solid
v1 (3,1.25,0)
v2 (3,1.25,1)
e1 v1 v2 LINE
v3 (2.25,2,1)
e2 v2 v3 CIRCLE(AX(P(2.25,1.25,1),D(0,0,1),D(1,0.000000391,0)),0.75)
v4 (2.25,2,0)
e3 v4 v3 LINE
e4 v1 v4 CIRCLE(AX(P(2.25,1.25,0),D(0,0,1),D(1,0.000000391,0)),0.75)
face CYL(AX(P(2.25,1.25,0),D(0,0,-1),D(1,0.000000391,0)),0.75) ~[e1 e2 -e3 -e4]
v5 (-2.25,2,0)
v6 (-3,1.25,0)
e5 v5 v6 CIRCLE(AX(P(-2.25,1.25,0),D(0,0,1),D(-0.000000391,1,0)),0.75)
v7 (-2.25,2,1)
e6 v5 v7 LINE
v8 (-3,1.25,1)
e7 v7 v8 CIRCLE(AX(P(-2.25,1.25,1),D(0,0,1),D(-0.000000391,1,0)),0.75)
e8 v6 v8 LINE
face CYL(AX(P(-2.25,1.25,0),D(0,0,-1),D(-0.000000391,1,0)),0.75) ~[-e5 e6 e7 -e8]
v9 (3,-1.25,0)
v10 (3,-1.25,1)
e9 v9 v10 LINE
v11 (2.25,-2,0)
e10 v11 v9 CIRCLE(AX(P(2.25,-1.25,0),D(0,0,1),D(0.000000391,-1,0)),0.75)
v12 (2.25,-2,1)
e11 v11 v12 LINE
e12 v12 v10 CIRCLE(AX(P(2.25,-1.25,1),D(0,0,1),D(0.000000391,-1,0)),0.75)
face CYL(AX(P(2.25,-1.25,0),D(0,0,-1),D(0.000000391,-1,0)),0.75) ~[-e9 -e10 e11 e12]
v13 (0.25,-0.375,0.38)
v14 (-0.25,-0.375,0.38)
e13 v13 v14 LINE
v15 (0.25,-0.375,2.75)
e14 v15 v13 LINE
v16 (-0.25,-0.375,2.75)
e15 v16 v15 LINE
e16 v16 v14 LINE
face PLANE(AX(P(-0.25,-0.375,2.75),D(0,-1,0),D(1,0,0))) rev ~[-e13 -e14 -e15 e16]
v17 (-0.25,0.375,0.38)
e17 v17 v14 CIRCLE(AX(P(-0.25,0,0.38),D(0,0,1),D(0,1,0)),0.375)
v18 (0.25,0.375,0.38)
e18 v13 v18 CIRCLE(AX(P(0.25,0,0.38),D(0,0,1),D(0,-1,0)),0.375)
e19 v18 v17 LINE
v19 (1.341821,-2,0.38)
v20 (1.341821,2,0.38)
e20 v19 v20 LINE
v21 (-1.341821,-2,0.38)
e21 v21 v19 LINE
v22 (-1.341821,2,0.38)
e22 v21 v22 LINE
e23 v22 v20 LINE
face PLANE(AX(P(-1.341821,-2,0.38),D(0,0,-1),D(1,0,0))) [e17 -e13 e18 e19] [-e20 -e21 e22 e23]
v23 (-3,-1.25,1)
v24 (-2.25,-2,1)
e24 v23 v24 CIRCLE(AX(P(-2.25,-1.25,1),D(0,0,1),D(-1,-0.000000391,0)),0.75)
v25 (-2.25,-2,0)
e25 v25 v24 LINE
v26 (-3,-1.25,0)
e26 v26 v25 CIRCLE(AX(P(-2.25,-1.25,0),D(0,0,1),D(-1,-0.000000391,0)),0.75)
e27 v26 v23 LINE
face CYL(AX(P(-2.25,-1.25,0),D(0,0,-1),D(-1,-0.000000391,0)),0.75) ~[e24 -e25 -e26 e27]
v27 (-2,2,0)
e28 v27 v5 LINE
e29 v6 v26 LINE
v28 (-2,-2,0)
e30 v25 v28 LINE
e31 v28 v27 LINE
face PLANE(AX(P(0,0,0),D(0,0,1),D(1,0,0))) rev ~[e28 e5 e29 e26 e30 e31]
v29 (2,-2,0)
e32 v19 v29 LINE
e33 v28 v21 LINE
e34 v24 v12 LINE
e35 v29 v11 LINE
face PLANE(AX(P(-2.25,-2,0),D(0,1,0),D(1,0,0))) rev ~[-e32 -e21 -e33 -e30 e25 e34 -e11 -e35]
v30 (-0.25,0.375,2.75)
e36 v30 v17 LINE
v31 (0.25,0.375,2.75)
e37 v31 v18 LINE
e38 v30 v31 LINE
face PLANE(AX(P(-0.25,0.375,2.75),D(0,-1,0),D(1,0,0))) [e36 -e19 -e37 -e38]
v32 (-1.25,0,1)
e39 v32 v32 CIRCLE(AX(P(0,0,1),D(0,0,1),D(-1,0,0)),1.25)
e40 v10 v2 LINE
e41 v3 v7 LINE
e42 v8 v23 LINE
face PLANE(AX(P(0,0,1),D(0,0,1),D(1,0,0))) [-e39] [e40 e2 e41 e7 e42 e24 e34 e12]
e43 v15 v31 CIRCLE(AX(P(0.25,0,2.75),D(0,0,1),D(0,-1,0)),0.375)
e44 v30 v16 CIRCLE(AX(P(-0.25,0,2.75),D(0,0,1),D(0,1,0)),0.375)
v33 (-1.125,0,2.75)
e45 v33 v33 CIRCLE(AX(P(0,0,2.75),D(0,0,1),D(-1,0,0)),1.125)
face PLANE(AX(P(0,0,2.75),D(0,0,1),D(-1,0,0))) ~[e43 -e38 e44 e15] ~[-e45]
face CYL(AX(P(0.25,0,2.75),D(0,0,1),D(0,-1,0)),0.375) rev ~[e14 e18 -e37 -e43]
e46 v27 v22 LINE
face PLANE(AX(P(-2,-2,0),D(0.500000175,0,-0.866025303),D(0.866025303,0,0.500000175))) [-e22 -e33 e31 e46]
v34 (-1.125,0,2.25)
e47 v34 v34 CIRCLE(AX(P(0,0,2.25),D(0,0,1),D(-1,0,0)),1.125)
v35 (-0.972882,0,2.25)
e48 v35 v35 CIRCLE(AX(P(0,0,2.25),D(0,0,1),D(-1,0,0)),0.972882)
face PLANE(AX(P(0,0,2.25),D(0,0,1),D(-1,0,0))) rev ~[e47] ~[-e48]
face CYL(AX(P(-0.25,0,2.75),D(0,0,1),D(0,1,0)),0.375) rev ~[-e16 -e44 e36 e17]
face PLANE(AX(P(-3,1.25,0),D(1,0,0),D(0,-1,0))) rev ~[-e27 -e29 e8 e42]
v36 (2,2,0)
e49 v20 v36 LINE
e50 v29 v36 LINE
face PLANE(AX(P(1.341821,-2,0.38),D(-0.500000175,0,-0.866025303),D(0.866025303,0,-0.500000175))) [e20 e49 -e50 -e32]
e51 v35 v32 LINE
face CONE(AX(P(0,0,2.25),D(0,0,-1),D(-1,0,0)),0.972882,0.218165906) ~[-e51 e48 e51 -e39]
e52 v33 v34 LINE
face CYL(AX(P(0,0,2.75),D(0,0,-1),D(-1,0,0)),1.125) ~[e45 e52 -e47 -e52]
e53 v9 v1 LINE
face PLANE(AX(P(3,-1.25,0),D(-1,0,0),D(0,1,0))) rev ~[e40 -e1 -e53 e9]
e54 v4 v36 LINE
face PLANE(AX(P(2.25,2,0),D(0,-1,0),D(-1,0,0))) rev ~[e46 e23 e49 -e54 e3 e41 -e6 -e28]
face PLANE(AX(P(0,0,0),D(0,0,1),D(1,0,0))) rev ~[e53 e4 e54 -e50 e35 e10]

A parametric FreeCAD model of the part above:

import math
import FreeCAD as App
import Part
import Sketcher

V = App.Vector
Q = App.Units.Quantity

doc = App.newDocument("Part")
body = doc.addObject("PartDesign::Body", "Body")

# Sketch on XY plane
sketch1 = doc.addObject("Sketcher::SketchObject", "Sketch")
body.addObject(sketch1)
sketch1.AttachmentSupport = (doc.XY_Plane, [""])
sketch1.MapMode = "FlatFace"
sketch1.addGeometry(Part.LineSegment(V(-3, 1.25, 0), V(-3, -1.25, 0)), False)
sketch1.addGeometry(Part.ArcOfCircle(Part.Circle(V(-2.25, -1.25, 0), V(0, 0, 1), 0.75), math.radians(-179.999978), math.radians(-90.000022)), False)
sketch1.addGeometry(Part.LineSegment(V(-2.25, -2, 0), V(2.25, -2, 0)), False)
sketch1.addGeometry(Part.ArcOfCircle(Part.Circle(V(2.25, -1.25, 0), V(0, 0, 1), 0.75), math.radians(-89.999978), math.radians(-0.000022)), False)
sketch1.addGeometry(Part.LineSegment(V(3, -1.25, 0), V(3, 1.25, 0)), False)
sketch1.addGeometry(Part.ArcOfCircle(Part.Circle(V(2.25, 1.25, 0), V(0, 0, 1), 0.75), math.radians(0.000022), math.radians(89.999978)), False)
sketch1.addGeometry(Part.LineSegment(V(2.25, 2, 0), V(-2.25, 2, 0)), False)
sketch1.addGeometry(Part.ArcOfCircle(Part.Circle(V(-2.25, 1.25, 0), V(0, 0, 1), 0.75), math.radians(90.000022), math.radians(179.999978)), False)
sketch1.addConstraint(Sketcher.Constraint("Tangent", 0, 2, 1, 1))
sketch1.addConstraint(Sketcher.Constraint("Tangent", 1, 2, 2, 1))
sketch1.addConstraint(Sketcher.Constraint("Tangent", 2, 2, 3, 1))
sketch1.addConstraint(Sketcher.Constraint("Tangent", 3, 2, 4, 1))
sketch1.addConstraint(Sketcher.Constraint("Tangent", 4, 2, 5, 1))
sketch1.addConstraint(Sketcher.Constraint("Tangent", 5, 2, 6, 1))
sketch1.addConstraint(Sketcher.Constraint("Tangent", 6, 2, 7, 1))
sketch1.addConstraint(Sketcher.Constraint("Tangent", 7, 2, 0, 1))
sketch1.addConstraint(Sketcher.Constraint("Vertical", 0))
sketch1.addConstraint(Sketcher.Constraint("Horizontal", 2))
sketch1.addConstraint(Sketcher.Constraint("Vertical", 4))
sketch1.addConstraint(Sketcher.Constraint("Horizontal", 6))
sketch1.addConstraint(Sketcher.Constraint("Equal", 1, 3))
sketch1.addConstraint(Sketcher.Constraint("Equal", 3, 5))
sketch1.addConstraint(Sketcher.Constraint("Equal", 5, 7))
sketch1.addConstraint(Sketcher.Constraint("Symmetric", 1, 3, 5, 3, -1, 1))
sketch1.addConstraint(Sketcher.Constraint("Radius", 1, 0.75))
sketch1.addConstraint(Sketcher.Constraint("DistanceX", 2, 1, 2, 2, 4.5))
sketch1.addConstraint(Sketcher.Constraint("DistanceY", 0, 2, 0, 1, 2.5))
pad1 = doc.addObject("PartDesign::Pad", "Pad")
body.addObject(pad1)
pad1.Profile = sketch1
pad1.Length = 1

# Sketch on XZ plane
sketch2 = doc.addObject("Sketcher::SketchObject", "Sketch001")
body.addObject(sketch2)
sketch2.AttachmentSupport = (doc.XZ_Plane, [""])
sketch2.MapMode = "FlatFace"
sketch2.AttachmentOffset = App.Placement(V(0, 0, 2), App.Rotation())
sketch2.addGeometry(Part.LineSegment(V(-1.341821, 0.38, 0), V(-2, 0, 0)), False)
sketch2.addGeometry(Part.LineSegment(V(-2, 0, 0), V(2, 0, 0)), False)
sketch2.addGeometry(Part.LineSegment(V(2, 0, 0), V(1.341821, 0.38, 0)), False)
sketch2.addGeometry(Part.LineSegment(V(1.341821, 0.38, 0), V(-1.341821, 0.38, 0)), False)
sketch2.addConstraint(Sketcher.Constraint("Coincident", 0, 2, 1, 1))
sketch2.addConstraint(Sketcher.Constraint("Coincident", 1, 2, 2, 1))
sketch2.addConstraint(Sketcher.Constraint("Coincident", 2, 2, 3, 1))
sketch2.addConstraint(Sketcher.Constraint("Coincident", 3, 2, 0, 1))
sketch2.addConstraint(Sketcher.Constraint("Horizontal", 1))
sketch2.addConstraint(Sketcher.Constraint("Horizontal", 3))
sketch2.addConstraint(Sketcher.Constraint("Symmetric", 0, 2, 1, 2, -1, 1))
sketch2.addConstraint(Sketcher.Constraint("Equal", 0, 2))
sketch2.addConstraint(Sketcher.Constraint("DistanceX", 1, 1, 1, 2, 4.0))
sketch2.addConstraint(Sketcher.Constraint("Angle", 0, Q("-149.999988 deg")))
sketch2.addConstraint(Sketcher.Constraint("Distance", 0, 0.76))
pocket1 = doc.addObject("PartDesign::Pocket", "Pocket")
body.addObject(pocket1)
pocket1.Profile = sketch2
pocket1.Type = "ThroughAll"
pocket1.Midplane = True

# Sketch on XZ plane
sketch3 = doc.addObject("Sketcher::SketchObject", "Sketch002")
body.addObject(sketch3)
sketch3.AttachmentSupport = (doc.XZ_Plane, [""])
sketch3.MapMode = "FlatFace"
sketch3.addGeometry(Part.LineSegment(V(0, 1, 0), V(0, 2.75, 0)), False)
sketch3.addGeometry(Part.LineSegment(V(0, 2.75, 0), V(-1.125, 2.75, 0)), False)
sketch3.addGeometry(Part.LineSegment(V(-1.125, 2.75, 0), V(-1.125, 2.25, 0)), False)
sketch3.addGeometry(Part.LineSegment(V(-1.125, 2.25, 0), V(-0.972882, 2.25, 0)), False)
sketch3.addGeometry(Part.LineSegment(V(-0.972882, 2.25, 0), V(-1.25, 1, 0)), False)
sketch3.addGeometry(Part.LineSegment(V(-1.25, 1, 0), V(0, 1, 0)), False)
sketch3.addConstraint(Sketcher.Constraint("Coincident", 0, 2, 1, 1))
sketch3.addConstraint(Sketcher.Constraint("Coincident", 1, 2, 2, 1))
sketch3.addConstraint(Sketcher.Constraint("Coincident", 2, 2, 3, 1))
sketch3.addConstraint(Sketcher.Constraint("Coincident", 3, 2, 4, 1))
sketch3.addConstraint(Sketcher.Constraint("Coincident", 4, 2, 5, 1))
sketch3.addConstraint(Sketcher.Constraint("Coincident", 5, 2, 0, 1))
sketch3.addConstraint(Sketcher.Constraint("Vertical", 0))
sketch3.addConstraint(Sketcher.Constraint("Horizontal", 1))
sketch3.addConstraint(Sketcher.Constraint("Vertical", 2))
sketch3.addConstraint(Sketcher.Constraint("Horizontal", 3))
sketch3.addConstraint(Sketcher.Constraint("Horizontal", 5))
sketch3.addConstraint(Sketcher.Constraint("PointOnObject", 0, 2, -2))
sketch3.addConstraint(Sketcher.Constraint("DistanceY", 2, 2, 2, 1, 0.5))
sketch3.addConstraint(Sketcher.Constraint("DistanceY", -1, 1, 4, 2, 1.0))
sketch3.addConstraint(Sketcher.Constraint("Angle", 4, Q("-102.499986 deg")))
sketch3.addConstraint(Sketcher.Constraint("DistanceX", 5, 1, 5, 2, 1.25))
sketch3.addConstraint(Sketcher.Constraint("DistanceY", 0, 1, 0, 2, 1.75))
sketch3.addConstraint(Sketcher.Constraint("DistanceX", 1, 2, 1, 1, 1.125))
revolution = doc.addObject("PartDesign::Revolution", "Revolution")
body.addObject(revolution)
revolution.Profile = sketch3
revolution.ReferenceAxis = (sketch3, ["V_Axis"])
revolution.Angle = 360

# Sketch on XY plane
sketch4 = doc.addObject("Sketcher::SketchObject", "Sketch003")
body.addObject(sketch4)
sketch4.AttachmentSupport = (doc.XY_Plane, [""])
sketch4.MapMode = "FlatFace"
sketch4.AttachmentOffset = App.Placement(V(0, 0, 2.75), App.Rotation())
sketch4.addGeometry(Part.ArcOfCircle(Part.Circle(V(-0.25, 0, 0), V(0, 0, 1), 0.375), math.radians(90), math.radians(270)), False)
sketch4.addGeometry(Part.LineSegment(V(-0.25, -0.375, 0), V(0.25, -0.375, 0)), False)
sketch4.addGeometry(Part.ArcOfCircle(Part.Circle(V(0.25, 0, 0), V(0, 0, 1), 0.375), math.radians(-90), math.radians(90)), False)
sketch4.addGeometry(Part.LineSegment(V(0.25, 0.375, 0), V(-0.25, 0.375, 0)), False)
sketch4.addConstraint(Sketcher.Constraint("Tangent", 0, 2, 1, 1))
sketch4.addConstraint(Sketcher.Constraint("Tangent", 1, 2, 2, 1))
sketch4.addConstraint(Sketcher.Constraint("Tangent", 2, 2, 3, 1))
sketch4.addConstraint(Sketcher.Constraint("Tangent", 3, 2, 0, 1))
sketch4.addConstraint(Sketcher.Constraint("Horizontal", 1))
sketch4.addConstraint(Sketcher.Constraint("Horizontal", 3))
sketch4.addConstraint(Sketcher.Constraint("Symmetric", 0, 3, 2, 3, -1, 1))
sketch4.addConstraint(Sketcher.Constraint("DistanceX", 1, 1, 1, 2, 0.5))
sketch4.addConstraint(Sketcher.Constraint("Radius", 0, 0.375))
pocket2 = doc.addObject("PartDesign::Pocket", "Pocket001")
body.addObject(pocket2)
pocket2.Profile = sketch4
pocket2.Type = "ThroughAll"

doc.recompute()
